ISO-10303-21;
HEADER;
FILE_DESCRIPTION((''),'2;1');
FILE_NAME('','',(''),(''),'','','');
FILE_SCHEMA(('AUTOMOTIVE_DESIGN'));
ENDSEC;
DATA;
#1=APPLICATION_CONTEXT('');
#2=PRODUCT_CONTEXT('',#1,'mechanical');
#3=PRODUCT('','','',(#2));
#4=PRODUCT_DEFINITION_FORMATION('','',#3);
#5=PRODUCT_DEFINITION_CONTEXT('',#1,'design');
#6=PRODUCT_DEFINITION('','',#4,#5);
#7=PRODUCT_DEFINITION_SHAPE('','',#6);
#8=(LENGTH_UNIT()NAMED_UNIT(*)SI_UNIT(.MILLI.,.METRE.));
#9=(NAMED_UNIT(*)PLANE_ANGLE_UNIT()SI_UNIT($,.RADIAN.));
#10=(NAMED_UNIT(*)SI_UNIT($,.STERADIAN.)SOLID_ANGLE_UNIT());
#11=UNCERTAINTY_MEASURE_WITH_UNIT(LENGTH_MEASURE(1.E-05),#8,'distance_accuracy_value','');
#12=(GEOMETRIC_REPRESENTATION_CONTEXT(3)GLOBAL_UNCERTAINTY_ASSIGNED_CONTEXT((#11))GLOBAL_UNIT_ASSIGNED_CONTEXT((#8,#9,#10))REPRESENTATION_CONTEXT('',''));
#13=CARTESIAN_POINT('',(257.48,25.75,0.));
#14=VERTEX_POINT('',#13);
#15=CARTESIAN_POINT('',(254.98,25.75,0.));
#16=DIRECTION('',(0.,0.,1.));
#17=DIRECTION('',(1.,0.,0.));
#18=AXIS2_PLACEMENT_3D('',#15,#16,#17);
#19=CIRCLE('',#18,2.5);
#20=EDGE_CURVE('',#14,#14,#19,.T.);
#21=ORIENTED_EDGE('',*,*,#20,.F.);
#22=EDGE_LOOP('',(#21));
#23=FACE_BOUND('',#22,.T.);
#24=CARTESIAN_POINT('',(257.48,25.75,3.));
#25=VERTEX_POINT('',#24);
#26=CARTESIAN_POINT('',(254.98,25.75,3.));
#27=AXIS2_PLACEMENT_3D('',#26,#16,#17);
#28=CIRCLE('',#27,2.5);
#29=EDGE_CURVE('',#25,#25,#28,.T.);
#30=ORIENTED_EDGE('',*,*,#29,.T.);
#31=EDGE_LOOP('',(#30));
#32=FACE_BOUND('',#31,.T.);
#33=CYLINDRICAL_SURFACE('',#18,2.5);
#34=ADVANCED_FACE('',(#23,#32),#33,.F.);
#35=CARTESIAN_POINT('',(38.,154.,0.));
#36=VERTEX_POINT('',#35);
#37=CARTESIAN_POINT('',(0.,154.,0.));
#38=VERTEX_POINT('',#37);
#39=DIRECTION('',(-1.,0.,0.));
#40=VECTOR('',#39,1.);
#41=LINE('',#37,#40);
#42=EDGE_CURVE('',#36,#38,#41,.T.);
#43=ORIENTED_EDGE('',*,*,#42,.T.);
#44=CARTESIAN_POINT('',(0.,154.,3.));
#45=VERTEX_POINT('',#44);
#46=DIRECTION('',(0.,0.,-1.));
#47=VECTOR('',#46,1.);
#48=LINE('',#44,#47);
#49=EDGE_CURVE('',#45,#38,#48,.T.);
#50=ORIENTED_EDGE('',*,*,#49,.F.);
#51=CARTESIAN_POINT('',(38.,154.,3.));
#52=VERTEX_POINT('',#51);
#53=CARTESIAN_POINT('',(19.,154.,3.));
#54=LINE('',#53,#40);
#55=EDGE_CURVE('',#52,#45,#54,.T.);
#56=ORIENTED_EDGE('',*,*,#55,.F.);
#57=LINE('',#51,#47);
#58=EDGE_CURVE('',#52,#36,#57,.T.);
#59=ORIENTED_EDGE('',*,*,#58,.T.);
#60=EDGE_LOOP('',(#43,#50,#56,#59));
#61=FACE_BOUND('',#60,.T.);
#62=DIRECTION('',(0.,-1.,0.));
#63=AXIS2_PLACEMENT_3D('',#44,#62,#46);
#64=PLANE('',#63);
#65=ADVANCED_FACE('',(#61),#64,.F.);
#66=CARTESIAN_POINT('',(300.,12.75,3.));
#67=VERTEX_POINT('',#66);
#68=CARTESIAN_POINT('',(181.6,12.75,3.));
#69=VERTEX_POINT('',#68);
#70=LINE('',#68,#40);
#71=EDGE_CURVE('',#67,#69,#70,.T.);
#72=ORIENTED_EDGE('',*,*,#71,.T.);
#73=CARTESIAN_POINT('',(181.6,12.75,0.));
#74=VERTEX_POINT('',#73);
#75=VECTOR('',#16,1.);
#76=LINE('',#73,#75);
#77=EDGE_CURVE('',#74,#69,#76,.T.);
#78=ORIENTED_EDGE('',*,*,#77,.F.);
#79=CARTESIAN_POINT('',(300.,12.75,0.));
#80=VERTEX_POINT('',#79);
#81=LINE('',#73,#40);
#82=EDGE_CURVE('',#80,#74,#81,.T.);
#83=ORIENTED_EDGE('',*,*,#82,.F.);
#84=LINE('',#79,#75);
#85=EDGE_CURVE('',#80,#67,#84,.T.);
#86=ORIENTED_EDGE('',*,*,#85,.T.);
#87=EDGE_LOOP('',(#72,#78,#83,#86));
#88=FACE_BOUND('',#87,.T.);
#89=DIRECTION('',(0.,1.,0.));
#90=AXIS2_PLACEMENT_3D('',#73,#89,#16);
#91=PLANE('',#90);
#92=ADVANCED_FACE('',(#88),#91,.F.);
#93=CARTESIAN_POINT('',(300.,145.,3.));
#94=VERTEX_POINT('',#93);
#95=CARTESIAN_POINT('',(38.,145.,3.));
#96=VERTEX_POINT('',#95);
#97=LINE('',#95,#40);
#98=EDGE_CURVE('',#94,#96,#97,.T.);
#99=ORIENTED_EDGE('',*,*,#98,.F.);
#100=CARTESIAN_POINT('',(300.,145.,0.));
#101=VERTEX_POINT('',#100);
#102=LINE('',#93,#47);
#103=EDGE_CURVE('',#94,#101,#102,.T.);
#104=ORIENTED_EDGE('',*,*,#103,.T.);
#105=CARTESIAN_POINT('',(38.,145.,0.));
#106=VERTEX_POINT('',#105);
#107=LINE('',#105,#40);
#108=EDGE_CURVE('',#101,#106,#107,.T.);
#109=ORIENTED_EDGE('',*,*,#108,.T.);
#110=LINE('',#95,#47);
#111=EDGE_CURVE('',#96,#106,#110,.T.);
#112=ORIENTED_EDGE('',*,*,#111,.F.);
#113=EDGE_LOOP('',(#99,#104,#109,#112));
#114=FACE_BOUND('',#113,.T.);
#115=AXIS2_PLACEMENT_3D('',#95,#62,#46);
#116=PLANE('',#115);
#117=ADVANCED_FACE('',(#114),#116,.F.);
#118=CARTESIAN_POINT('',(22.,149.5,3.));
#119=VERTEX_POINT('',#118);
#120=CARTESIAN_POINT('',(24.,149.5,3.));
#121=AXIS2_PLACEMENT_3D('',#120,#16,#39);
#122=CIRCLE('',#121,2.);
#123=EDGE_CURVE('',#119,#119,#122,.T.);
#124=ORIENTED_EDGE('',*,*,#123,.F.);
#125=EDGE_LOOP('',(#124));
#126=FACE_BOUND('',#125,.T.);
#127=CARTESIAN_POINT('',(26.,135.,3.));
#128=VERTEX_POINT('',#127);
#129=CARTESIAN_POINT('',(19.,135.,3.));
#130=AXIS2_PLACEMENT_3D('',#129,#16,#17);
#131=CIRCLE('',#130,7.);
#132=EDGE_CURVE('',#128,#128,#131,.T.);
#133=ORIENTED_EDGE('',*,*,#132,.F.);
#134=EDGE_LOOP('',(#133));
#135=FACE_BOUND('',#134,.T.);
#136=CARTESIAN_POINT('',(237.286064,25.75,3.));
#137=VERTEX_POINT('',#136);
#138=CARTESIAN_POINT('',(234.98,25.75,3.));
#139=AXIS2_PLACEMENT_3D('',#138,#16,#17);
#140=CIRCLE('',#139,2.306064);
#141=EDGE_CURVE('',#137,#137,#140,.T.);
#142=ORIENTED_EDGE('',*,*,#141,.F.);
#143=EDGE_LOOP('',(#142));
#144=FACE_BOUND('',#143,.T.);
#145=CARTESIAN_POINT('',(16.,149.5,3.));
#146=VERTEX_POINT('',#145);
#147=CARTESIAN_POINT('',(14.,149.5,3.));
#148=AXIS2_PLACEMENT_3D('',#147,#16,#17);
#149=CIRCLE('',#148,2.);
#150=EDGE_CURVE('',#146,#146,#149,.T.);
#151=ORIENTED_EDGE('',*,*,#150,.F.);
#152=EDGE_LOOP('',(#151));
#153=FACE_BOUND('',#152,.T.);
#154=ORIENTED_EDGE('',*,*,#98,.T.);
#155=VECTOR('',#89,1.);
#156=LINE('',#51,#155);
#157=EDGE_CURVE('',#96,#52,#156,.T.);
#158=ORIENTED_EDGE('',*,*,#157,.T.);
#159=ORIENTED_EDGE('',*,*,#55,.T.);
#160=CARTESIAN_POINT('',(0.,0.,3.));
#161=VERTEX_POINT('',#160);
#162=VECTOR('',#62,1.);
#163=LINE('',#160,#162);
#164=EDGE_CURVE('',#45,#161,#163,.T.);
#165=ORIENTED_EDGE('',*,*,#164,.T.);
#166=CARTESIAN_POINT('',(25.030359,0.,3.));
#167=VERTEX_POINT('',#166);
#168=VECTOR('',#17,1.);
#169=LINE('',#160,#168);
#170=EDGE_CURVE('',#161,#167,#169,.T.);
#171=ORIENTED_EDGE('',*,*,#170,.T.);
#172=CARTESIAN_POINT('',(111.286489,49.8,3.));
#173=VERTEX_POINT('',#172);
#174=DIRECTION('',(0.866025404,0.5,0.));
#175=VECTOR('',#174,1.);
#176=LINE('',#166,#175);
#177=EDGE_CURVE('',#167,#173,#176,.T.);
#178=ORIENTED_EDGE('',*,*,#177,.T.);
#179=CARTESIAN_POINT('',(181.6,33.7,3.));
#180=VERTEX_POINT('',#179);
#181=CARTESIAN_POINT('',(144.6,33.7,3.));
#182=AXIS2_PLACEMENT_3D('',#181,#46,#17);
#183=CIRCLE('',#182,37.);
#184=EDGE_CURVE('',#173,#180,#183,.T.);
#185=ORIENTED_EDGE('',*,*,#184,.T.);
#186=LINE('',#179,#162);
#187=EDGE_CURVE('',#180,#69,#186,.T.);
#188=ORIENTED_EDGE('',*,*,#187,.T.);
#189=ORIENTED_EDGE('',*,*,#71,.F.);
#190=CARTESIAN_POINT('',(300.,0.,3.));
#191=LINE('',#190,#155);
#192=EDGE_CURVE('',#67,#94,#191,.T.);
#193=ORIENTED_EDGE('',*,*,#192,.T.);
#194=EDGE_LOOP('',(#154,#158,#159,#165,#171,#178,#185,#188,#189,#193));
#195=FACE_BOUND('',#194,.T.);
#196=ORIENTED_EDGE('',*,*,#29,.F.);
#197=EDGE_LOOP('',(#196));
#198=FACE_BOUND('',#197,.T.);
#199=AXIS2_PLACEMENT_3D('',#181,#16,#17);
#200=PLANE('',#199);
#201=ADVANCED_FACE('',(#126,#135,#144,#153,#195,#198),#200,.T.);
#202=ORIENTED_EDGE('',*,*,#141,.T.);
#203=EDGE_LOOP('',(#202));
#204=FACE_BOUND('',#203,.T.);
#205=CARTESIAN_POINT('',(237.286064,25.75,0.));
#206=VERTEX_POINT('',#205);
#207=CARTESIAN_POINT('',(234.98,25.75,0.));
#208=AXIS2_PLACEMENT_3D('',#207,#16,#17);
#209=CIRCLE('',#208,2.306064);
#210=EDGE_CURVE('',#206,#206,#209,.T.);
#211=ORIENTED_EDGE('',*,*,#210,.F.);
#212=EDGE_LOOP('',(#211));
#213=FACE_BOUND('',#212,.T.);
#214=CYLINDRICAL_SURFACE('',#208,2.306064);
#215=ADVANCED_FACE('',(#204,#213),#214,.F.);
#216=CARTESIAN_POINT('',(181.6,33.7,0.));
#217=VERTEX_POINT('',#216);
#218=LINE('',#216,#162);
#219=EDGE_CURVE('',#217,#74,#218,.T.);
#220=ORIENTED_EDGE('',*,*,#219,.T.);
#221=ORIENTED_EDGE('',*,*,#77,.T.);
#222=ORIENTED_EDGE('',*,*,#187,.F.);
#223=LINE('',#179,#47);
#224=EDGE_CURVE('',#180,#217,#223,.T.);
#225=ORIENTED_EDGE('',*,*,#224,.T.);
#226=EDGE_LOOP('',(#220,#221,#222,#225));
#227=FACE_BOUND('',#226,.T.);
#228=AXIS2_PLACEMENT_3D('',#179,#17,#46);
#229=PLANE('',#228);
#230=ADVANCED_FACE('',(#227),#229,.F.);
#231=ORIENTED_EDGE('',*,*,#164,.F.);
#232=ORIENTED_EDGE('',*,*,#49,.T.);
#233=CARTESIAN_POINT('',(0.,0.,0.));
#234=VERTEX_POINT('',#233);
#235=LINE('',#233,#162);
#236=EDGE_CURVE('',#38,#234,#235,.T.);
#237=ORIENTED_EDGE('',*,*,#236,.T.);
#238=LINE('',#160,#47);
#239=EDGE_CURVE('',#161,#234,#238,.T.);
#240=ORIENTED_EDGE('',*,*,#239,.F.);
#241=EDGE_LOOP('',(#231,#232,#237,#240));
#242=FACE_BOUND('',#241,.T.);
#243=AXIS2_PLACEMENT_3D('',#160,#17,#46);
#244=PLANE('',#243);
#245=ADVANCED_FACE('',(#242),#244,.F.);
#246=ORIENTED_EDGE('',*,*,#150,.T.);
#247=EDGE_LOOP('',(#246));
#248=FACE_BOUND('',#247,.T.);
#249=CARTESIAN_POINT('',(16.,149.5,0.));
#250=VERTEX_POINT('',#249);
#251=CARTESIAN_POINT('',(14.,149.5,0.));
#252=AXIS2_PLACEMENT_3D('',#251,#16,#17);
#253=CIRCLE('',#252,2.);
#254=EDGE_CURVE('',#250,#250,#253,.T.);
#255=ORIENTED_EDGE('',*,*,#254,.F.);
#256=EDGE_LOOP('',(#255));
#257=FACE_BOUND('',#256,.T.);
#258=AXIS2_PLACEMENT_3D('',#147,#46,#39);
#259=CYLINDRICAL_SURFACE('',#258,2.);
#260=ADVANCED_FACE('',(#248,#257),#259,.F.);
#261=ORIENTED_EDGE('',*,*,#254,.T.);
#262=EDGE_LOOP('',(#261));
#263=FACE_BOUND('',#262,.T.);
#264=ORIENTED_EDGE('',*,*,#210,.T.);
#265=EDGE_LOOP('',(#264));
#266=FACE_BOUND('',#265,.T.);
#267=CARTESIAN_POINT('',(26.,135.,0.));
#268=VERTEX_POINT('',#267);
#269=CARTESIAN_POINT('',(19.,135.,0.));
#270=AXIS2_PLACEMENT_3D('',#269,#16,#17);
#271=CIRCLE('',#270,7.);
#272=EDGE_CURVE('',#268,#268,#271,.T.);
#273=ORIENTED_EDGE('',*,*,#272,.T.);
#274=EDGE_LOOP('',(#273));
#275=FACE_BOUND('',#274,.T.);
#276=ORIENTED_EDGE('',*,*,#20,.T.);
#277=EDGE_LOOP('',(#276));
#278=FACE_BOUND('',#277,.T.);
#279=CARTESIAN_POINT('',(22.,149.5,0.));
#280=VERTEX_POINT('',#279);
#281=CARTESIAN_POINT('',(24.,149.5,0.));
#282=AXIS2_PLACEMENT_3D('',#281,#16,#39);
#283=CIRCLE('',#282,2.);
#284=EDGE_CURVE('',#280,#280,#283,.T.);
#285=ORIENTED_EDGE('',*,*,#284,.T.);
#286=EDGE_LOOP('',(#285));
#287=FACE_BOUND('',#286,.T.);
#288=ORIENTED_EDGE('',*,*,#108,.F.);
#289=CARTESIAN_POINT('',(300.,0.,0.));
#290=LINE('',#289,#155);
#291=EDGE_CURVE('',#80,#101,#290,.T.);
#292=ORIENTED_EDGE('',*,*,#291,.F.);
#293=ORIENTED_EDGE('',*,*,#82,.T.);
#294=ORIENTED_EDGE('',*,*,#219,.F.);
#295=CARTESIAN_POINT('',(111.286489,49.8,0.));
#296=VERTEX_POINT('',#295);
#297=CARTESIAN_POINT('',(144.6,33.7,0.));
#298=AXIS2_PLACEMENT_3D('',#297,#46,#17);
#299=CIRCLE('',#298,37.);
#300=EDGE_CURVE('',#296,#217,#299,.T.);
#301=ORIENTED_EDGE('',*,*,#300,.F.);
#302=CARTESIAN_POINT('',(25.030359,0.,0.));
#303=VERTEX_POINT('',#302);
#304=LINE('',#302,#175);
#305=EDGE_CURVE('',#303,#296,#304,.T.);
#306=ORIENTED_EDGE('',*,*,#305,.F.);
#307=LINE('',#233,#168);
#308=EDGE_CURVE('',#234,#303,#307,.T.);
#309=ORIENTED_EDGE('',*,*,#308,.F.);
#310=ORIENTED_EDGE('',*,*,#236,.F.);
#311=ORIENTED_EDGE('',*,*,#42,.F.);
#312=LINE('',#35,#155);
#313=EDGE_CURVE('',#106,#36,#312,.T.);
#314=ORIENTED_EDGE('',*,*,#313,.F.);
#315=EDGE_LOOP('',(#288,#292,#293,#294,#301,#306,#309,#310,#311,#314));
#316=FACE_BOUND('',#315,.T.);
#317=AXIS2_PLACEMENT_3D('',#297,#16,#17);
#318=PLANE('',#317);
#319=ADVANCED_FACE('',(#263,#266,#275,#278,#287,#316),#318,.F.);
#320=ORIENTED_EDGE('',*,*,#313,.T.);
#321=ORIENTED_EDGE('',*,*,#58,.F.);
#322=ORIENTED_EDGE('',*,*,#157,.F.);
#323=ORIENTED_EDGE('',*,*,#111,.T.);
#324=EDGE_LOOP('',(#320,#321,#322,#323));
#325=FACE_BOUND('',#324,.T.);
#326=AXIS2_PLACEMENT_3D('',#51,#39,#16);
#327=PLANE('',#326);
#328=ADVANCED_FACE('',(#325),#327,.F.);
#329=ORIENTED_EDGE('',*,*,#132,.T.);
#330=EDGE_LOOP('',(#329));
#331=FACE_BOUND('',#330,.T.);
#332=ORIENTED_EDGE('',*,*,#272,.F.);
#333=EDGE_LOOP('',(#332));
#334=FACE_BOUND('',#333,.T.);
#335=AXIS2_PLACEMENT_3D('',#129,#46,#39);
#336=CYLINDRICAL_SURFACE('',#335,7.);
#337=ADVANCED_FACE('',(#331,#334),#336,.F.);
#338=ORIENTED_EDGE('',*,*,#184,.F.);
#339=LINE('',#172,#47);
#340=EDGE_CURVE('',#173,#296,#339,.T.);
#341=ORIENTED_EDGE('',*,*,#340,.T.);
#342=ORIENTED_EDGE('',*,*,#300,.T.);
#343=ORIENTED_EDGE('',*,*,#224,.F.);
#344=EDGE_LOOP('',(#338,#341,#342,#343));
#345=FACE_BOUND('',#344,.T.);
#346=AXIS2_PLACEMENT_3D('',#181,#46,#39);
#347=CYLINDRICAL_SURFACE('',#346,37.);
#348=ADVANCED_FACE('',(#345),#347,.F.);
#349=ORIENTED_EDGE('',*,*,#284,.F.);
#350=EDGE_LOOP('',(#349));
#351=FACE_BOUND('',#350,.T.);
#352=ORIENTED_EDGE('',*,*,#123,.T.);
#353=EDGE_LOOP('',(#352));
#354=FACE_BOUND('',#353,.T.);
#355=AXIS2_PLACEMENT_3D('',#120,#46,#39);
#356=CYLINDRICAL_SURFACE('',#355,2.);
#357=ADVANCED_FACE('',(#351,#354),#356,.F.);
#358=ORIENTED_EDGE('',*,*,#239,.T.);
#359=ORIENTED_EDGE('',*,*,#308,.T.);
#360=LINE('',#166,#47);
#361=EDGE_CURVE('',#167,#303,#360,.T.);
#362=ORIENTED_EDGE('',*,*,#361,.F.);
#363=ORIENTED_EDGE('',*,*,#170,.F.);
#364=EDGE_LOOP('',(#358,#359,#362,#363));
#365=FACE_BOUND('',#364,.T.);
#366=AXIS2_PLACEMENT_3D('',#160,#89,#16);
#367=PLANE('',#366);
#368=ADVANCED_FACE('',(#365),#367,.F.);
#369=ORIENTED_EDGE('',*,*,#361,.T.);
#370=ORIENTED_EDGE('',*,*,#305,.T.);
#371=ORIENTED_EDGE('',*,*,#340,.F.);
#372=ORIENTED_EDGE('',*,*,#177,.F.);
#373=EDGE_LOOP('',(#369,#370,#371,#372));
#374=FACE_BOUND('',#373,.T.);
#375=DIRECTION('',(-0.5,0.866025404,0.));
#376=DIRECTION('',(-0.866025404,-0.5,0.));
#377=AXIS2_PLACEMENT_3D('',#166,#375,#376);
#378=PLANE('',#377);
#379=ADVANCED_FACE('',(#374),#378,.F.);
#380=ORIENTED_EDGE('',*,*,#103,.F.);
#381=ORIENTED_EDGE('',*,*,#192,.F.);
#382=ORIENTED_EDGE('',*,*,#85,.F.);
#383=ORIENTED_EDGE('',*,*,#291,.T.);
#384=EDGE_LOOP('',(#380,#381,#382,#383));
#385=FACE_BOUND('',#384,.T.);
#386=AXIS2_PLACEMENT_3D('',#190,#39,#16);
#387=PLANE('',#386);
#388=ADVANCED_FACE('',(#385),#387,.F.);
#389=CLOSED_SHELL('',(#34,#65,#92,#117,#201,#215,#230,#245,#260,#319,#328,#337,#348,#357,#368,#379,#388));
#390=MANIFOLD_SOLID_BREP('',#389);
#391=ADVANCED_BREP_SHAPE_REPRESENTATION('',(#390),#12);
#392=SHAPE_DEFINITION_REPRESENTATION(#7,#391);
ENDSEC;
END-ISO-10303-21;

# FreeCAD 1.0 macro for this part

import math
import FreeCAD as App
import Part
import Sketcher

V = App.Vector
Q = App.Units.Quantity

doc = App.newDocument("Part")
body = doc.addObject("PartDesign::Body", "Body")

sketch1 = body.newObject("Sketcher::SketchObject", "Sketch")
sketch1.AttachmentSupport = (doc.getObject("XY_Plane"), [""])
sketch1.MapMode = "FlatFace"
sketch1.addGeometry(Part.LineSegment(V(25, 0, 0), V(111.3, 49.8, 0)), False)
sketch1.addGeometry(Part.ArcOfCircle(Part.Circle(V(144.6, 33.7, 0), V(0, 0, 1), 37), math.radians(0), math.radians(154)), False)
sketch1.addGeometry(Part.LineSegment(V(181.6, 33.7, 0), V(181.6, 0, 0)), False)
sketch1.addGeometry(Part.LineSegment(V(181.6, 0, 0), V(300, 0, 0)), False)
sketch1.addGeometry(Part.LineSegment(V(300, 0, 0), V(300, 145, 0)), False)
sketch1.addGeometry(Part.LineSegment(V(300, 145, 0), V(38, 145, 0)), False)
sketch1.addGeometry(Part.LineSegment(V(38, 145, 0), V(38, 154, 0)), False)
sketch1.addGeometry(Part.LineSegment(V(38, 154, 0), V(0, 154, 0)), False)
sketch1.addGeometry(Part.LineSegment(V(0, 154, 0), V(0, 0, 0)), False)
sketch1.addGeometry(Part.LineSegment(V(0, 0, 0), V(25, 0, 0)), False)
sketch1.addGeometry(Part.Circle(V(19, 135, 0), V(0, 0, 1), 7), False)
sketch1.addGeometry(Part.Circle(V(14, 149.5, 0), V(0, 0, 1), 2), False)
sketch1.addGeometry(Part.Circle(V(24, 149.5, 0), V(0, 0, 1), 2), False)
sketch1.addConstraint(Sketcher.Constraint("Coincident", 0, 2, 1, 2))
sketch1.addConstraint(Sketcher.Constraint("Tangent", 1, 1, 2, 1))
sketch1.addConstraint(Sketcher.Constraint("Coincident", 2, 2, 3, 1))
sketch1.addConstraint(Sketcher.Constraint("Coincident", 3, 2, 4, 1))
sketch1.addConstraint(Sketcher.Constraint("Coincident", 4, 2, 5, 1))
sketch1.addConstraint(Sketcher.Constraint("Coincident", 5, 2, 6, 1))
sketch1.addConstraint(Sketcher.Constraint("Coincident", 6, 2, 7, 1))
sketch1.addConstraint(Sketcher.Constraint("Coincident", 7, 2, 8, 1))
sketch1.addConstraint(Sketcher.Constraint("Coincident", 8, 2, 9, 1))
sketch1.addConstraint(Sketcher.Constraint("Coincident", 9, 2, 0, 1))
sketch1.addConstraint(Sketcher.Constraint("Vertical", 2))
sketch1.addConstraint(Sketcher.Constraint("Horizontal", 3))
sketch1.addConstraint(Sketcher.Constraint("Vertical", 4))
sketch1.addConstraint(Sketcher.Constraint("Horizontal", 5))
sketch1.addConstraint(Sketcher.Constraint("Vertical", 6))
sketch1.addConstraint(Sketcher.Constraint("Horizontal", 7))
sketch1.addConstraint(Sketcher.Constraint("Vertical", 8))
sketch1.addConstraint(Sketcher.Constraint("Horizontal", 9))
sketch1.addConstraint(Sketcher.Constraint("Coincident", 8, 2, -1, 1))
sketch1.addConstraint(Sketcher.Constraint("Equal", 11, 12))
sketch1.addConstraint(Sketcher.Constraint("PointOnObject", 2, 2, -1))
sketch1.addConstraint(Sketcher.Constraint("Horizontal", 11, 3, 12, 3))
sketch1.addConstraint(Sketcher.Constraint("Diameter", 10, 14.0))
sketch1.addConstraint(Sketcher.Constraint("Diameter", 11, 4.0))
sketch1.addConstraint(Sketcher.Constraint("Radius", 1, 37.0))
sketch1.addConstraint(Sketcher.Constraint("DistanceX", 5, 2, 5, 1, 262.0))
sketch1.addConstraint(Sketcher.Constraint("DistanceX", 7, 2, 7, 1, 38.0))
sketch1.addConstraint(Sketcher.Constraint("DistanceY", 4, 1, 4, 2, 145.0))
sketch1.addConstraint(Sketcher.Constraint("DistanceY", 6, 1, 6, 2, 9.0))
sketch1.addConstraint(Sketcher.Constraint("Angle", 0, Q("30 deg")))
sketch1.addConstraint(Sketcher.Constraint("DistanceX", 3, 1, 3, 2, 118.4))
sketch1.addConstraint(Sketcher.Constraint("DistanceY", 2, 2, 2, 1, 33.7))
sketch1.addConstraint(Sketcher.Constraint("DistanceX", -1, 1, 10, 3, 19.0))
sketch1.addConstraint(Sketcher.Constraint("DistanceY", -1, 1, 10, 3, 135.0))
sketch1.addConstraint(Sketcher.Constraint("DistanceX", -1, 1, 11, 3, 14.0))
sketch1.addConstraint(Sketcher.Constraint("DistanceX", -1, 1, 12, 3, 24.0))
sketch1.addConstraint(Sketcher.Constraint("Distance", 0, 99.6))
sketch1.addConstraint(Sketcher.Constraint("DistanceY", -1, 1, 11, 3, 149.5))
pad1 = body.newObject("PartDesign::Pad", "Pad")
pad1.Profile = sketch1
pad1.Length = 3

sketch2 = body.newObject("Sketcher::SketchObject", "Sketch001")
sketch2.AttachmentSupport = (doc.getObject("XY_Plane"), [""])
sketch2.MapMode = "FlatFace"
sketch2.AttachmentOffset = App.Placement(V(0, 0, 3), App.Rotation())
sketch2.addGeometry(Part.LineSegment(V(182, 13, 0), V(182, 0, 0)), False)
sketch2.addGeometry(Part.LineSegment(V(182, 0, 0), V(300, 0, 0)), False)
sketch2.addGeometry(Part.LineSegment(V(300, 0, 0), V(300, 13, 0)), False)
sketch2.addGeometry(Part.LineSegment(V(300, 13, 0), V(182, 13, 0)), False)
sketch2.addConstraint(Sketcher.Constraint("Coincident", 0, 2, 1, 1))
sketch2.addConstraint(Sketcher.Constraint("Coincident", 1, 2, 2, 1))
sketch2.addConstraint(Sketcher.Constraint("Coincident", 2, 2, 3, 1))
sketch2.addConstraint(Sketcher.Constraint("Coincident", 3, 2, 0, 1))
sketch2.addConstraint(Sketcher.Constraint("Vertical", 0))
sketch2.addConstraint(Sketcher.Constraint("Horizontal", 1))
sketch2.addConstraint(Sketcher.Constraint("Vertical", 2))
sketch2.addConstraint(Sketcher.Constraint("Horizontal", 3))
sketch2.addConstraint(Sketcher.Constraint("PointOnObject", 0, 2, -1))
sketch2.addConstraint(Sketcher.Constraint("DistanceX", 1, 1, 1, 2, 118.4))
sketch2.addConstraint(Sketcher.Constraint("DistanceX", -1, 1, 1, 2, 300.0))
sketch2.addConstraint(Sketcher.Constraint("DistanceY", 0, 2, 0, 1, 12.75))
pocket1 = body.newObject("PartDesign::Pocket", "Pocket")
pocket1.Profile = sketch2
pocket1.Type = "ThroughAll"

sketch3 = body.newObject("Sketcher::SketchObject", "Sketch002")
sketch3.AttachmentSupport = (doc.getObject("XY_Plane"), [""])
sketch3.MapMode = "FlatFace"
sketch3.AttachmentOffset = App.Placement(V(0, 0, 3), App.Rotation())
sketch3.addGeometry(Part.Circle(V(255, 25.8, 0), V(0, 0, 1), 2.5), False)
sketch3.addGeometry(Part.Circle(V(235, 25.8, 0), V(0, 0, 1), 2.3), False)
sketch3.addConstraint(Sketcher.Constraint("Horizontal", 0, 3, 1, 3))
sketch3.addConstraint(Sketcher.Constraint("Diameter", 0, 5.0))
sketch3.addConstraint(Sketcher.Constraint("DistanceX", 1, 3, 0, 3, 20.0))
sketch3.addConstraint(Sketcher.Constraint("DistanceX", -1, 1, 0, 3, 254.98))
sketch3.addConstraint(Sketcher.Constraint("DistanceY", -1, 1, 0, 3, 25.75))
sketch3.addConstraint(Sketcher.Constraint("Diameter", 1, 4.612127))
pocket2 = body.newObject("PartDesign::Pocket", "Pocket001")
pocket2.Profile = sketch3
pocket2.Type = "ThroughAll"

doc.recompute()
